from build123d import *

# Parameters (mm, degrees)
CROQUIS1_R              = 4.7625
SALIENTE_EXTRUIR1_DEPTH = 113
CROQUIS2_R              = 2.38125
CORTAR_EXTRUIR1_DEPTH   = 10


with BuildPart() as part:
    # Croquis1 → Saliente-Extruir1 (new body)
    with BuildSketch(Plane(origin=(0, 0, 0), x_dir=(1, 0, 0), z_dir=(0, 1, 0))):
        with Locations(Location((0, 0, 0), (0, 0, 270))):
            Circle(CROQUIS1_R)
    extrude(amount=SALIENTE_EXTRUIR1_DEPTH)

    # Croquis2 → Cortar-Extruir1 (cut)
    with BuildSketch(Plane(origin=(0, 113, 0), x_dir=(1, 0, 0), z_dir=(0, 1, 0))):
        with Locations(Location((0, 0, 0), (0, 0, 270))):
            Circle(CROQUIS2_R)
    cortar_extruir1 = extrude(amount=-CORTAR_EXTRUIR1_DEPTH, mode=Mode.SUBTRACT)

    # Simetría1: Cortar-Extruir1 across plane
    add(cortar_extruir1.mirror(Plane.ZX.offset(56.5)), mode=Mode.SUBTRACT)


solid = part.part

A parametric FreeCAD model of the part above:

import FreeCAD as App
import Part
import Sketcher

V = App.Vector
Q = App.Units.Quantity

doc = App.newDocument("Part")
body = doc.addObject("PartDesign::Body", "Body")

# Sketch on XZ plane
sketch1 = body.newObject("Sketcher::SketchObject", "Sketch")
sketch1.AttachmentSupport = (doc.getObject("XZ_Plane"), [""])
sketch1.MapMode = "FlatFace"
sketch1.addGeometry(Part.Circle(V(0, 0, 0), V(0, 0, 1), 4.7625), False)
sketch1.addConstraint([
    Sketcher.Constraint("Coincident", 0, 3, -1, 1),
    Sketcher.Constraint("Diameter", 0, Q("9.525 mm")),
])
pad1 = body.newObject("PartDesign::Pad", "Pad")
pad1.Profile = sketch1
pad1.Length = 113
pad1.Reversed = True

# Sketch on XZ plane
sketch2 = body.newObject("Sketcher::SketchObject", "Sketch001")
sketch2.AttachmentSupport = (doc.getObject("XZ_Plane"), [""])
sketch2.MapMode = "FlatFace"
sketch2.AttachmentOffset = App.Placement(V(0, 0, -113), App.Rotation())
sketch2.addGeometry(Part.Circle(V(0, 0, 0), V(0, 0, 1), 2.38125), False)
sketch2.addConstraint([
    Sketcher.Constraint("Coincident", 0, 3, -1, 1),
    Sketcher.Constraint("Diameter", 0, Q("4.7625 mm")),
])
pocket1 = body.newObject("PartDesign::Pocket", "Pocket")
pocket1.Profile = sketch2
pocket1.Length = 10
pocket1.Reversed = True
doc.recompute()

datumplane = body.newObject("PartDesign::Plane", "DatumPlane")
datumplane.AttachmentSupport = (doc.getObject("XZ_Plane"), [""])
datumplane.MapMode = "FlatFace"
datumplane.AttachmentOffset = App.Placement(V(0, 0, -56.5), App.Rotation())
mirrored = body.newObject("PartDesign::Mirrored", "Mirrored")
mirrored.Originals = [pocket1]
mirrored.MirrorPlane = (datumplane, [""])
body.Tip = mirrored

doc.recompute()
